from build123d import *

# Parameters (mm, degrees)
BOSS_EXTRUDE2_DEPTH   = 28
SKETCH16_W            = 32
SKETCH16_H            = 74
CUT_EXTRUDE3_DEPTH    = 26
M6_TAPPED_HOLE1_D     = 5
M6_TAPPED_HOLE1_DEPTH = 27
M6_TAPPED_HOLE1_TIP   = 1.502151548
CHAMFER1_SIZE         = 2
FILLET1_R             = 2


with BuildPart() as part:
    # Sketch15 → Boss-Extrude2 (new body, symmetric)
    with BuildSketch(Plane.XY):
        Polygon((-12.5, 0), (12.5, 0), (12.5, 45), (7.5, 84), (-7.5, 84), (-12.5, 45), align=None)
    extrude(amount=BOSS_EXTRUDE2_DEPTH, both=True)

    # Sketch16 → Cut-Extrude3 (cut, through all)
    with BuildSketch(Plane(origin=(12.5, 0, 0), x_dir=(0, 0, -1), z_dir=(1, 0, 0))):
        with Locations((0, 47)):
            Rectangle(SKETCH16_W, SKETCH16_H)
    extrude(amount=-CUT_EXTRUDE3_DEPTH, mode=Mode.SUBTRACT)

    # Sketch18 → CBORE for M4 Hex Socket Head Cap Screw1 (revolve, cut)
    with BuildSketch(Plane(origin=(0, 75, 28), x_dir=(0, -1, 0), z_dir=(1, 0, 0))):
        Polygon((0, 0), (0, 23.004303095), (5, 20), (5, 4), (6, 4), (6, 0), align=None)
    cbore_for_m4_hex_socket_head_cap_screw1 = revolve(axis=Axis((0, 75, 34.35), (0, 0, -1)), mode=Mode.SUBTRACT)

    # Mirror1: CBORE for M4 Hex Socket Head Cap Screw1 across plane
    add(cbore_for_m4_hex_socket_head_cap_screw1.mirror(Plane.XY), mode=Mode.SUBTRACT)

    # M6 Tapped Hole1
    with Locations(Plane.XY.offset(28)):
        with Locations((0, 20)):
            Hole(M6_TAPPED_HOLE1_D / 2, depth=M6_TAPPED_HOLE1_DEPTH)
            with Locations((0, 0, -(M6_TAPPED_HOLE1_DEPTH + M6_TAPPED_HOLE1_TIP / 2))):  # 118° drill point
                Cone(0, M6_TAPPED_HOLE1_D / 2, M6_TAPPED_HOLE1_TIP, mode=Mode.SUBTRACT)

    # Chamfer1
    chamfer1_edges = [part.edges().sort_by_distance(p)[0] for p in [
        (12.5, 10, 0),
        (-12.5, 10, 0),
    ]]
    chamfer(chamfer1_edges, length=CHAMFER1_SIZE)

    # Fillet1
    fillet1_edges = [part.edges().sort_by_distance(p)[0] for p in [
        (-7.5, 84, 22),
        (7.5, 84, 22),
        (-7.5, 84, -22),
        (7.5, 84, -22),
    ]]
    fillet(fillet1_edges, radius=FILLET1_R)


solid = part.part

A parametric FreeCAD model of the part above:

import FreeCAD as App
import Part
import Sketcher
from FreeCAD import Vector
Q = App.Units.Quantity


def edges_at(feature, points):
    """Names of the edges that pass closest to the given points."""
    edges = feature.Shape.Edges
    near = lambda p: min(range(len(edges)), key=lambda i: edges[i].distToShape(Part.Vertex(*p))[0])
    return sorted({f"Edge{near(p) + 1}" for p in points})


def add_polygon(sketch, points):
    """Adds a closed chain of lines whose ends are joined by coincident constraints."""
    first, n = sketch.GeometryCount, len(points)
    for a, b in zip(points, points[1:] + points[:1]):
        sketch.addGeometry(Part.LineSegment(App.Vector(*a, 0), App.Vector(*b, 0)), False)
    for i in range(n):
        sketch.addConstraint(Sketcher.Constraint("Coincident", first + i, 2, first + (i + 1) % n, 1))

doc = App.newDocument("Part")
body = doc.addObject("PartDesign::Body", "Body")

# Sketch on XY plane
sketch1 = body.newObject("Sketcher::SketchObject", "Sketch")
sketch1.AttachmentSupport = (doc.getObject("XY_Plane"), [""])
sketch1.MapMode = "FlatFace"
add_polygon(sketch1, [(-12, 0), (12, 0), (12, 45), (8, 84), (-8, 84), (-12, 45)])  # lines 0-5
sketch1.addConstraint([
    Sketcher.Constraint("Horizontal", 0),
    Sketcher.Constraint("Vertical", 1),
    Sketcher.Constraint("Horizontal", 3),
    Sketcher.Constraint("Vertical", 5),
    Sketcher.Constraint("Symmetric", 0, 2, 5, 2, -1, 1),
    Sketcher.Constraint("Horizontal", 1, 2, 4, 2),
    Sketcher.Constraint("Equal", 2, 4),
    Sketcher.Constraint("DistanceX", 0, 1, 0, 2, Q("25 mm")),
    Sketcher.Constraint("DistanceX", 3, 2, 3, 1, Q("15 mm")),
    Sketcher.Constraint("DistanceY", 1, 1, 1, 2, Q("45 mm")),
    Sketcher.Constraint("DistanceY", -1, 1, 2, 2, Q("84 mm")),
])
pad1 = body.newObject("PartDesign::Pad", "Pad")
pad1.Profile = sketch1
pad1.Length = 56
pad1.Midplane = True

# Sketch on YZ plane
sketch2 = body.newObject("Sketcher::SketchObject", "Sketch001")
sketch2.AttachmentSupport = (doc.getObject("YZ_Plane"), [""])
sketch2.MapMode = "FlatFace"
sketch2.AttachmentOffset = App.Placement(Vector(0, 0, 12.5), App.Rotation())
add_polygon(sketch2, [(84, 16), (10, 16), (10, -16), (84, -16)])  # lines 0-3
sketch2.addConstraint([
    Sketcher.Constraint("Horizontal", 0),
    Sketcher.Constraint("Vertical", 1),
    Sketcher.Constraint("Horizontal", 2),
    Sketcher.Constraint("Vertical", 3),
    Sketcher.Constraint("DistanceX", 0, 2, 0, 1, Q("74 mm")),
    Sketcher.Constraint("DistanceY", 1, 2, 1, 1, Q("32 mm")),
    Sketcher.Constraint("DistanceX", -1, 1, 0, 2, Q("10 mm")),
    Sketcher.Constraint("DistanceY", -1, 1, 0, 2, Q("16 mm")),
])
pocket1 = body.newObject("PartDesign::Pocket", "Pocket")
pocket1.Profile = sketch2
pocket1.Type = "ThroughAll"

# Sketch on YZ plane
sketch3 = body.newObject("Sketcher::SketchObject", "Sketch002")
sketch3.AttachmentSupport = (doc.getObject("YZ_Plane"), [""])
sketch3.MapMode = "FlatFace"
add_polygon(sketch3, [(75, 5), (75, 28), (69, 28), (69, 24), (70, 24), (70, 8)])  # lines 0-5
sketch3.addGeometry(Part.LineSegment(Vector(75, 28, 0), Vector(75, 5, 0)), True)  # axis
sketch3.addConstraint([
    Sketcher.Constraint("Vertical", 0),
    Sketcher.Constraint("Horizontal", 1),
    Sketcher.Constraint("Vertical", 2),
    Sketcher.Constraint("Horizontal", 3),
    Sketcher.Constraint("Vertical", 4),
    Sketcher.Constraint("Vertical", 6),
    Sketcher.Constraint("Coincident", 6, 1, 0, 2),
    Sketcher.Constraint("Equal", 0, 6),
    Sketcher.Constraint("DistanceX", 1, 2, 1, 1, Q("6 mm")),
    Sketcher.Constraint("DistanceX", 3, 1, 3, 2, Q("1 mm")),
    Sketcher.Constraint("DistanceY", 2, 2, 2, 1, Q("4 mm")),
    Sketcher.Constraint("DistanceY", 4, 2, 4, 1, Q("16 mm")),
    Sketcher.Constraint("Angle", 5, Q("-31 deg")),
    Sketcher.Constraint("DistanceX", -1, 1, 0, 2, Q("75 mm")),
    Sketcher.Constraint("DistanceY", -1, 1, 0, 2, Q("28 mm")),
])
groove = body.newObject("PartDesign::Groove", "Groove")
groove.Profile = sketch3
groove.ReferenceAxis = (sketch3, ["Axis0"])
groove.Angle = 360
doc.recompute()

mirrored = body.newObject("PartDesign::Mirrored", "Mirrored")
mirrored.Originals = [groove]
mirrored.MirrorPlane = (doc.getObject("XY_Plane"), [""])
body.Tip = mirrored

# Sketch on XY plane
sketch4 = body.newObject("Sketcher::SketchObject", "Sketch003")
sketch4.AttachmentSupport = (doc.getObject("XY_Plane"), [""])
sketch4.MapMode = "FlatFace"
sketch4.AttachmentOffset = App.Placement(Vector(0, 0, 28), App.Rotation())
sketch4.addGeometry(Part.Circle(Vector(0, 20, 0), Vector(0, 0, 1), 2.5), False)
sketch4.addConstraint([
    Sketcher.Constraint("PointOnObject", 0, 3, -2),
    Sketcher.Constraint("Diameter", 0, Q("5 mm")),
    Sketcher.Constraint("DistanceY", -1, 1, 0, 3, Q("20 mm")),
])
doc.recompute()
hole = body.newObject("PartDesign::Hole", "Hole")
hole.Profile = sketch4
hole.ThreadType = "None"
hole.Diameter = 5
hole.DepthType = "Dimension"
hole.Depth = 27
hole.DrillPoint = "Angled"
hole.DrillPointAngle = 118
doc.recompute()

chamfer = body.newObject("PartDesign::Chamfer", "Chamfer")
chamfer.Base = (hole, edges_at(hole, [(12.5, 10, 0), (-12.5, 10, 0)]))
chamfer.Size = 2
doc.recompute()

fillet = body.newObject("PartDesign::Fillet", "Fillet")
fillet.Base = (chamfer, edges_at(chamfer, [
    (-7.5, 84, 22),
    (7.5, 84, 22),
    (-7.5, 84, -22),
    (7.5, 84, -22),
]))
fillet.Radius = 2

doc.recompute()
